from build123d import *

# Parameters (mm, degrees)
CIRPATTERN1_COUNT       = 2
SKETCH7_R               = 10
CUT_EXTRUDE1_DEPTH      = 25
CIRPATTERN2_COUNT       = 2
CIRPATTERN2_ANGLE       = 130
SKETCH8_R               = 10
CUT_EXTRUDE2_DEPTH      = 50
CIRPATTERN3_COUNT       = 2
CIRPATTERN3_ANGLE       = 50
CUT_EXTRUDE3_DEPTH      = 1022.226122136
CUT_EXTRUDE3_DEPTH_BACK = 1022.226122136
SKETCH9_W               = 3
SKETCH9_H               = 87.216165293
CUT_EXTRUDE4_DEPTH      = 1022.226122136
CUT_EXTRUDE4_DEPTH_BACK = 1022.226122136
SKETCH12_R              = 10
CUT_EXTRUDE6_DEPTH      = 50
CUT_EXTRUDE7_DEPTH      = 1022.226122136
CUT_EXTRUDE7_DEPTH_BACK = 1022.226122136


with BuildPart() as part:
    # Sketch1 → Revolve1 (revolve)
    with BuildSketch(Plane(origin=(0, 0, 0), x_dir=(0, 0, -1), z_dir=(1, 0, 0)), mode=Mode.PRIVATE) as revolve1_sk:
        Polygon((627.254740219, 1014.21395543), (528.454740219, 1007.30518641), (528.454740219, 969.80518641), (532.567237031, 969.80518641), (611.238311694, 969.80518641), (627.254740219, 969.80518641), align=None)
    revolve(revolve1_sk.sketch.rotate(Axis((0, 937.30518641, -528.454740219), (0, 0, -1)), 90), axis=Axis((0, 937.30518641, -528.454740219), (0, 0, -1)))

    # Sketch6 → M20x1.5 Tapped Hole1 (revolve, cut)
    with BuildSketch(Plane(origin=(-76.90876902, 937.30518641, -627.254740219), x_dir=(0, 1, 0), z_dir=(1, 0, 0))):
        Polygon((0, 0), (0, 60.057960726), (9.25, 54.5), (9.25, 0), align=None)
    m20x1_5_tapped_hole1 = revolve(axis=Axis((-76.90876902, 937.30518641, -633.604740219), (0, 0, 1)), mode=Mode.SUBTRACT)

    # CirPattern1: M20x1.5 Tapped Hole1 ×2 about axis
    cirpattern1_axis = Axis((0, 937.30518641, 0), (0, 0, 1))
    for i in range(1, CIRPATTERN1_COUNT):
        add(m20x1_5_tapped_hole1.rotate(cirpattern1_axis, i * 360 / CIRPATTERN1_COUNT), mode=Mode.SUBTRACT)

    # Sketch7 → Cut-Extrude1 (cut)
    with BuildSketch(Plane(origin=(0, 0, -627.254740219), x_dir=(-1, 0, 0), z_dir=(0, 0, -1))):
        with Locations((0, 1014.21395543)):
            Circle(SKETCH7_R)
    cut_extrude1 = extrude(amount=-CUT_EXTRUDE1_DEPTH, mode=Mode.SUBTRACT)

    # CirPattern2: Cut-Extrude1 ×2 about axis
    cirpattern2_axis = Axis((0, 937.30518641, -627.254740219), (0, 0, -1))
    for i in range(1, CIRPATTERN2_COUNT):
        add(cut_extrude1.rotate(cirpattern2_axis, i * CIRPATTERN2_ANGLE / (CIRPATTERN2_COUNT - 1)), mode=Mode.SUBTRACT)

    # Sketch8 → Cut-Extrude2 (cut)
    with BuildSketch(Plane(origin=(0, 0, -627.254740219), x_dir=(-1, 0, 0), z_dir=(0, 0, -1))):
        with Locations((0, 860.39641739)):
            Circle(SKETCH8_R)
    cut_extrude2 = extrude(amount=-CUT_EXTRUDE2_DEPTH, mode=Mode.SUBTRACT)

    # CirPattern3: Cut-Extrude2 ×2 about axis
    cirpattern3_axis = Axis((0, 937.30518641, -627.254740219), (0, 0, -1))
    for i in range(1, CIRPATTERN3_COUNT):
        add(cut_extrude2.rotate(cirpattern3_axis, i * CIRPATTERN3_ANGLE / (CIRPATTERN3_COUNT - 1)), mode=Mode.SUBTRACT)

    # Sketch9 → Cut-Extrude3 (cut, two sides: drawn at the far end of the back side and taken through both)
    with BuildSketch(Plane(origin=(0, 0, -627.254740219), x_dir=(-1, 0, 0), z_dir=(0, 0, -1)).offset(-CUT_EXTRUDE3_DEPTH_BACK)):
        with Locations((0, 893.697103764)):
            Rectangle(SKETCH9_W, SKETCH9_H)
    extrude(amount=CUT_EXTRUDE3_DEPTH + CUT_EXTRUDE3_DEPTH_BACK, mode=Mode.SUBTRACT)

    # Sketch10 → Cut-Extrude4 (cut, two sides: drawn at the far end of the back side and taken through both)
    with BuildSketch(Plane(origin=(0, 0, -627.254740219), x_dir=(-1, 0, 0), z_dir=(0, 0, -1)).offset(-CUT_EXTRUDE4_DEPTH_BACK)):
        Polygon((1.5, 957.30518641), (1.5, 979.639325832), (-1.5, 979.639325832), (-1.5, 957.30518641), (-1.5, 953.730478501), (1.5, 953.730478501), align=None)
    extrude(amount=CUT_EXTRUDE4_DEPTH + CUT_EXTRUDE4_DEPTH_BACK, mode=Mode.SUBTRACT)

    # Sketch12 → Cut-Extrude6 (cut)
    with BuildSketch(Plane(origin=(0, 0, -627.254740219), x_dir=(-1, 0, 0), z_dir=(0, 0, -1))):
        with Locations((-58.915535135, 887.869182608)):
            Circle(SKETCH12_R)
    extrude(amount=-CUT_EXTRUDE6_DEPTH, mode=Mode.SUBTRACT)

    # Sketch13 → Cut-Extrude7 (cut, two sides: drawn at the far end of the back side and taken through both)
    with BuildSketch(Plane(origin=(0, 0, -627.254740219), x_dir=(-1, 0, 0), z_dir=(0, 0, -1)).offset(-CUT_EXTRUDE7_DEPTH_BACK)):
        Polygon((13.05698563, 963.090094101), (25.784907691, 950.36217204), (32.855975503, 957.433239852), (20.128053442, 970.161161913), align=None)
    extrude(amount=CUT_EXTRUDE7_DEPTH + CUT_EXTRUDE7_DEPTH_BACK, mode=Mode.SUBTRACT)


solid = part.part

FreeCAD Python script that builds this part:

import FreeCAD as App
import Part
import Sketcher

V = App.Vector
Q = App.Units.Quantity

doc = App.newDocument("Part")
body = doc.addObject("PartDesign::Body", "Body")

# Sketch on YZ plane
sketch1 = body.newObject("Sketcher::SketchObject", "Sketch")
sketch1.AttachmentSupport = (doc.getObject("YZ_Plane"), [""])
sketch1.MapMode = "FlatFace"
sketch1.addGeometry([
    Part.LineSegment(V(1014, -627, 0), V(1007, -528, 0)),
    Part.LineSegment(V(1007, -528, 0), V(970, -528, 0)),
    Part.LineSegment(V(970, -528, 0), V(970, -627, 0)),
    Part.LineSegment(V(970, -627, 0), V(1014, -627, 0)),
], False)
sketch1.addGeometry(Part.LineSegment(V(937, -528, 0), V(937, -627, 0)), True)  # axis
sketch1.addConstraint([
    Sketcher.Constraint("Coincident", 0, 2, 1, 1),
    Sketcher.Constraint("Coincident", 1, 2, 2, 1),
    Sketcher.Constraint("Coincident", 2, 2, 3, 1),
    Sketcher.Constraint("Coincident", 3, 2, 0, 1),
    Sketcher.Constraint("Horizontal", 1),
    Sketcher.Constraint("Vertical", 2),
    Sketcher.Constraint("Horizontal", 3),
    Sketcher.Constraint("Vertical", 4),
    Sketcher.Constraint("Horizontal", 1, 2, 4, 1),
    Sketcher.Constraint("Horizontal", 3, 2, 4, 2),
    Sketcher.Constraint("Angle", 0, Q("94 deg")),
    Sketcher.Constraint("DistanceX", 1, 2, 1, 1, 37.5),
    Sketcher.Constraint("DistanceY", 2, 2, 2, 1, 98.8),
    Sketcher.Constraint("DistanceX", 4, 1, 0, 2, 70.0),
    Sketcher.Constraint("DistanceY", 0, 2, -1, 1, 528.45474),
    Sketcher.Constraint("DistanceX", -1, 1, 0, 2, 1007.305186),
])
revolution = body.newObject("PartDesign::Revolution", "Revolution")
revolution.Profile = sketch1
revolution.ReferenceAxis = (sketch1, ["Axis0"])
revolution.Angle = 360

# Sketch on YZ plane
sketch2 = body.newObject("Sketcher::SketchObject", "Sketch001")
sketch2.AttachmentSupport = (doc.getObject("YZ_Plane"), [""])
sketch2.MapMode = "FlatFace"
sketch2.AttachmentOffset = App.Placement(V(0, 0, -76.908769), App.Rotation())
sketch2.addGeometry([
    Part.LineSegment(V(937, -567, 0), V(937, -627, 0)),
    Part.LineSegment(V(937, -627, 0), V(947, -627, 0)),
    Part.LineSegment(V(947, -627, 0), V(947, -573, 0)),
    Part.LineSegment(V(947, -573, 0), V(937, -567, 0)),
], False)
sketch2.addGeometry(Part.LineSegment(V(937, -627, 0), V(937, -567, 0)), True)  # axis
sketch2.addConstraint([
    Sketcher.Constraint("Coincident", 0, 2, 1, 1),
    Sketcher.Constraint("Coincident", 1, 2, 2, 1),
    Sketcher.Constraint("Coincident", 2, 2, 3, 1),
    Sketcher.Constraint("Coincident", 3, 2, 0, 1),
    Sketcher.Constraint("Vertical", 0),
    Sketcher.Constraint("Horizontal", 1),
    Sketcher.Constraint("Vertical", 2),
    Sketcher.Constraint("Vertical", 4),
    Sketcher.Constraint("Coincident", 4, 1, 0, 2),
    Sketcher.Constraint("Equal", 0, 4),
    Sketcher.Constraint("Angle", 3, Q("149 deg")),
    Sketcher.Constraint("DistanceY", 2, 1, 2, 2, 54.5),
    Sketcher.Constraint("DistanceX", 1, 1, 1, 2, 9.25),
    Sketcher.Constraint("DistanceY", 0, 2, -1, 1, 627.25474),
    Sketcher.Constraint("DistanceX", -1, 1, 0, 2, 937.305186),
])
groove = body.newObject("PartDesign::Groove", "Groove")
groove.Profile = sketch2
groove.ReferenceAxis = (sketch2, ["Axis0"])
groove.Angle = 360
doc.recompute()

datumline = body.newObject("PartDesign::Line", "DatumLine")
datumline.Placement = App.Placement(V(0, 937.305186, 0), App.Rotation(V(0, 0, 1), V(0, 0, 1)))
polarpattern = body.newObject("PartDesign::PolarPattern", "PolarPattern")
polarpattern.Originals = [groove]
polarpattern.Axis = (datumline, [""])
polarpattern.Angle = 360
polarpattern.Occurrences = 2
body.Tip = polarpattern

# Sketch on XY plane
sketch3 = body.newObject("Sketcher::SketchObject", "Sketch002")
sketch3.AttachmentSupport = (doc.getObject("XY_Plane"), [""])
sketch3.MapMode = "FlatFace"
sketch3.AttachmentOffset = App.Placement(V(0, 0, -627.25474), App.Rotation())
sketch3.addGeometry(Part.Circle(V(0, 1014, 0), V(0, 0, 1), 10), False)
sketch3.addConstraint([
    Sketcher.Constraint("PointOnObject", 0, 3, -2),
    Sketcher.Constraint("Diameter", 0, 20.0),
    Sketcher.Constraint("DistanceY", -1, 1, 0, 3, 1014.213955),
])
pocket1 = body.newObject("PartDesign::Pocket", "Pocket")
pocket1.Profile = sketch3
pocket1.Length = 25
pocket1.Reversed = True
doc.recompute()

datumline2 = body.newObject("PartDesign::Line", "DatumLine001")
datumline2.Placement = App.Placement(V(0, 937.305186, 0), App.Rotation(V(0, 0, 1), V(0, 0, -1)))
polarpattern2 = body.newObject("PartDesign::PolarPattern", "PolarPattern001")
polarpattern2.Originals = [pocket1]
polarpattern2.Axis = (datumline2, [""])
polarpattern2.Angle = 130
polarpattern2.Occurrences = 2
body.Tip = polarpattern2

# Sketch on XY plane
sketch4 = body.newObject("Sketcher::SketchObject", "Sketch003")
sketch4.AttachmentSupport = (doc.getObject("XY_Plane"), [""])
sketch4.MapMode = "FlatFace"
sketch4.AttachmentOffset = App.Placement(V(0, 0, -627.25474), App.Rotation())
sketch4.addGeometry(Part.Circle(V(0, 860, 0), V(0, 0, 1), 10), False)
sketch4.addConstraint([
    Sketcher.Constraint("PointOnObject", 0, 3, -2),
    Sketcher.Constraint("Diameter", 0, 20.0),
    Sketcher.Constraint("DistanceY", -1, 1, 0, 3, 860.396417),
])
pocket2 = body.newObject("PartDesign::Pocket", "Pocket001")
pocket2.Profile = sketch4
pocket2.Length = 50
pocket2.Reversed = True
doc.recompute()

datumline3 = body.newObject("PartDesign::Line", "DatumLine002")
datumline3.Placement = App.Placement(V(0, 937.305186, 0), App.Rotation(V(0, 0, 1), V(0, 0, -1)))
polarpattern3 = body.newObject("PartDesign::PolarPattern", "PolarPattern002")
polarpattern3.Originals = [pocket2]
polarpattern3.Axis = (datumline3, [""])
polarpattern3.Angle = 50
polarpattern3.Occurrences = 2
body.Tip = polarpattern3

# Sketch on XY plane
sketch5 = body.newObject("Sketcher::SketchObject", "Sketch004")
sketch5.AttachmentSupport = (doc.getObject("XY_Plane"), [""])
sketch5.MapMode = "FlatFace"
sketch5.AttachmentOffset = App.Placement(V(0, 0, -627.25474), App.Rotation())
sketch5.addGeometry([
    Part.LineSegment(V(1.5, 937.3, 0), V(1.5, 850.1, 0)),
    Part.LineSegment(V(1.5, 850.1, 0), V(-1.5, 850.1, 0)),
    Part.LineSegment(V(-1.5, 850.1, 0), V(-1.5, 937.3, 0)),
    Part.LineSegment(V(-1.5, 937.3, 0), V(1.5, 937.3, 0)),
], False)
sketch5.addConstraint([
    Sketcher.Constraint("Coincident", 0, 2, 1, 1),
    Sketcher.Constraint("Coincident", 1, 2, 2, 1),
    Sketcher.Constraint("Coincident", 2, 2, 3, 1),
    Sketcher.Constraint("Coincident", 3, 2, 0, 1),
    Sketcher.Constraint("Vertical", 0),
    Sketcher.Constraint("Horizontal", 1),
    Sketcher.Constraint("Vertical", 2),
    Sketcher.Constraint("Horizontal", 3),
    Sketcher.Constraint("DistanceX", 1, 2, 1, 1, 3.0),
    Sketcher.Constraint("DistanceX", -1, 1, 0, 2, 1.5),
    Sketcher.Constraint("DistanceY", 0, 2, 0, 1, 87.216165),
    Sketcher.Constraint("DistanceY", -1, 1, 0, 2, 850.089021),
])
pocket3 = body.newObject("PartDesign::Pocket", "Pocket002")
pocket3.Profile = sketch5
pocket3.Type = "ThroughAll"
pocket3.Midplane = True

# Sketch on XY plane
sketch6 = body.newObject("Sketcher::SketchObject", "Sketch005")
sketch6.AttachmentSupport = (doc.getObject("XY_Plane"), [""])
sketch6.MapMode = "FlatFace"
sketch6.AttachmentOffset = App.Placement(V(0, 0, -627.25474), App.Rotation())
sketch6.addGeometry([
    Part.LineSegment(V(-1.5, 979.6, 0), V(1.5, 979.6, 0)),
    Part.LineSegment(V(1.5, 979.6, 0), V(1.5, 953.7, 0)),
    Part.LineSegment(V(1.5, 953.7, 0), V(-1.5, 953.7, 0)),
    Part.LineSegment(V(-1.5, 953.7, 0), V(-1.5, 979.6, 0)),
], False)
sketch6.addConstraint([
    Sketcher.Constraint("Coincident", 0, 2, 1, 1),
    Sketcher.Constraint("Coincident", 1, 2, 2, 1),
    Sketcher.Constraint("Coincident", 2, 2, 3, 1),
    Sketcher.Constraint("Coincident", 3, 2, 0, 1),
    Sketcher.Constraint("Horizontal", 0),
    Sketcher.Constraint("Vertical", 1),
    Sketcher.Constraint("Horizontal", 2),
    Sketcher.Constraint("Vertical", 3),
    Sketcher.Constraint("DistanceX", 0, 1, 0, 2, 3.0),
    Sketcher.Constraint("DistanceX", -1, 1, 0, 2, 1.5),
    Sketcher.Constraint("DistanceY", 1, 2, 1, 1, 25.908847),
    Sketcher.Constraint("DistanceY", -1, 1, 1, 2, 953.730479),
])
pocket4 = body.newObject("PartDesign::Pocket", "Pocket003")
pocket4.Profile = sketch6
pocket4.Type = "ThroughAll"
pocket4.Midplane = True

# Sketch on XY plane
sketch7 = body.newObject("Sketcher::SketchObject", "Sketch006")
sketch7.AttachmentSupport = (doc.getObject("XY_Plane"), [""])
sketch7.MapMode = "FlatFace"
sketch7.AttachmentOffset = App.Placement(V(0, 0, -627.25474), App.Rotation())
sketch7.addGeometry(Part.Circle(V(59, 888, 0), V(0, 0, 1), 10), False)
sketch7.addConstraint([
    Sketcher.Constraint("Diameter", 0, 20.0),
    Sketcher.Constraint("DistanceX", -1, 1, 0, 3, 58.915535),
    Sketcher.Constraint("DistanceY", -1, 1, 0, 3, 887.869183),
])
pocket5 = body.newObject("PartDesign::Pocket", "Pocket004")
pocket5.Profile = sketch7
pocket5.Length = 50
pocket5.Reversed = True

# Sketch on XY plane
sketch8 = body.newObject("Sketcher::SketchObject", "Sketch007")
sketch8.AttachmentSupport = (doc.getObject("XY_Plane"), [""])
sketch8.MapMode = "FlatFace"
sketch8.AttachmentOffset = App.Placement(V(0, 0, -627.25474), App.Rotation())
sketch8.addGeometry([
    Part.LineSegment(V(-13, 963, 0), V(-26, 950, 0)),
    Part.LineSegment(V(-26, 950, 0), V(-33, 957, 0)),
    Part.LineSegment(V(-33, 957, 0), V(-20, 970, 0)),
    Part.LineSegment(V(-20, 970, 0), V(-13, 963, 0)),
], False)
sketch8.addConstraint([
    Sketcher.Constraint("Coincident", 0, 2, 1, 1),
    Sketcher.Constraint("Coincident", 1, 2, 2, 1),
    Sketcher.Constraint("Coincident", 2, 2, 3, 1),
    Sketcher.Constraint("Coincident", 3, 2, 0, 1),
    Sketcher.Constraint("Perpendicular", 0, 1),
    Sketcher.Constraint("Perpendicular", 1, 2),
    Sketcher.Constraint("Perpendicular", 2, 3),
    Sketcher.Constraint("Angle", 0, Q("-135 deg")),
    Sketcher.Constraint("Distance", 0, 18.0),
    Sketcher.Constraint("Distance", 1, 10.0),
    Sketcher.Constraint("DistanceY", -1, 1, 1, 2, 957.43324),
    Sketcher.Constraint("DistanceX", 0, 2, -1, 1, 25.784908),
])
pocket6 = body.newObject("PartDesign::Pocket", "Pocket005")
pocket6.Profile = sketch8
pocket6.Type = "ThroughAll"
pocket6.Midplane = True

doc.recompute()
